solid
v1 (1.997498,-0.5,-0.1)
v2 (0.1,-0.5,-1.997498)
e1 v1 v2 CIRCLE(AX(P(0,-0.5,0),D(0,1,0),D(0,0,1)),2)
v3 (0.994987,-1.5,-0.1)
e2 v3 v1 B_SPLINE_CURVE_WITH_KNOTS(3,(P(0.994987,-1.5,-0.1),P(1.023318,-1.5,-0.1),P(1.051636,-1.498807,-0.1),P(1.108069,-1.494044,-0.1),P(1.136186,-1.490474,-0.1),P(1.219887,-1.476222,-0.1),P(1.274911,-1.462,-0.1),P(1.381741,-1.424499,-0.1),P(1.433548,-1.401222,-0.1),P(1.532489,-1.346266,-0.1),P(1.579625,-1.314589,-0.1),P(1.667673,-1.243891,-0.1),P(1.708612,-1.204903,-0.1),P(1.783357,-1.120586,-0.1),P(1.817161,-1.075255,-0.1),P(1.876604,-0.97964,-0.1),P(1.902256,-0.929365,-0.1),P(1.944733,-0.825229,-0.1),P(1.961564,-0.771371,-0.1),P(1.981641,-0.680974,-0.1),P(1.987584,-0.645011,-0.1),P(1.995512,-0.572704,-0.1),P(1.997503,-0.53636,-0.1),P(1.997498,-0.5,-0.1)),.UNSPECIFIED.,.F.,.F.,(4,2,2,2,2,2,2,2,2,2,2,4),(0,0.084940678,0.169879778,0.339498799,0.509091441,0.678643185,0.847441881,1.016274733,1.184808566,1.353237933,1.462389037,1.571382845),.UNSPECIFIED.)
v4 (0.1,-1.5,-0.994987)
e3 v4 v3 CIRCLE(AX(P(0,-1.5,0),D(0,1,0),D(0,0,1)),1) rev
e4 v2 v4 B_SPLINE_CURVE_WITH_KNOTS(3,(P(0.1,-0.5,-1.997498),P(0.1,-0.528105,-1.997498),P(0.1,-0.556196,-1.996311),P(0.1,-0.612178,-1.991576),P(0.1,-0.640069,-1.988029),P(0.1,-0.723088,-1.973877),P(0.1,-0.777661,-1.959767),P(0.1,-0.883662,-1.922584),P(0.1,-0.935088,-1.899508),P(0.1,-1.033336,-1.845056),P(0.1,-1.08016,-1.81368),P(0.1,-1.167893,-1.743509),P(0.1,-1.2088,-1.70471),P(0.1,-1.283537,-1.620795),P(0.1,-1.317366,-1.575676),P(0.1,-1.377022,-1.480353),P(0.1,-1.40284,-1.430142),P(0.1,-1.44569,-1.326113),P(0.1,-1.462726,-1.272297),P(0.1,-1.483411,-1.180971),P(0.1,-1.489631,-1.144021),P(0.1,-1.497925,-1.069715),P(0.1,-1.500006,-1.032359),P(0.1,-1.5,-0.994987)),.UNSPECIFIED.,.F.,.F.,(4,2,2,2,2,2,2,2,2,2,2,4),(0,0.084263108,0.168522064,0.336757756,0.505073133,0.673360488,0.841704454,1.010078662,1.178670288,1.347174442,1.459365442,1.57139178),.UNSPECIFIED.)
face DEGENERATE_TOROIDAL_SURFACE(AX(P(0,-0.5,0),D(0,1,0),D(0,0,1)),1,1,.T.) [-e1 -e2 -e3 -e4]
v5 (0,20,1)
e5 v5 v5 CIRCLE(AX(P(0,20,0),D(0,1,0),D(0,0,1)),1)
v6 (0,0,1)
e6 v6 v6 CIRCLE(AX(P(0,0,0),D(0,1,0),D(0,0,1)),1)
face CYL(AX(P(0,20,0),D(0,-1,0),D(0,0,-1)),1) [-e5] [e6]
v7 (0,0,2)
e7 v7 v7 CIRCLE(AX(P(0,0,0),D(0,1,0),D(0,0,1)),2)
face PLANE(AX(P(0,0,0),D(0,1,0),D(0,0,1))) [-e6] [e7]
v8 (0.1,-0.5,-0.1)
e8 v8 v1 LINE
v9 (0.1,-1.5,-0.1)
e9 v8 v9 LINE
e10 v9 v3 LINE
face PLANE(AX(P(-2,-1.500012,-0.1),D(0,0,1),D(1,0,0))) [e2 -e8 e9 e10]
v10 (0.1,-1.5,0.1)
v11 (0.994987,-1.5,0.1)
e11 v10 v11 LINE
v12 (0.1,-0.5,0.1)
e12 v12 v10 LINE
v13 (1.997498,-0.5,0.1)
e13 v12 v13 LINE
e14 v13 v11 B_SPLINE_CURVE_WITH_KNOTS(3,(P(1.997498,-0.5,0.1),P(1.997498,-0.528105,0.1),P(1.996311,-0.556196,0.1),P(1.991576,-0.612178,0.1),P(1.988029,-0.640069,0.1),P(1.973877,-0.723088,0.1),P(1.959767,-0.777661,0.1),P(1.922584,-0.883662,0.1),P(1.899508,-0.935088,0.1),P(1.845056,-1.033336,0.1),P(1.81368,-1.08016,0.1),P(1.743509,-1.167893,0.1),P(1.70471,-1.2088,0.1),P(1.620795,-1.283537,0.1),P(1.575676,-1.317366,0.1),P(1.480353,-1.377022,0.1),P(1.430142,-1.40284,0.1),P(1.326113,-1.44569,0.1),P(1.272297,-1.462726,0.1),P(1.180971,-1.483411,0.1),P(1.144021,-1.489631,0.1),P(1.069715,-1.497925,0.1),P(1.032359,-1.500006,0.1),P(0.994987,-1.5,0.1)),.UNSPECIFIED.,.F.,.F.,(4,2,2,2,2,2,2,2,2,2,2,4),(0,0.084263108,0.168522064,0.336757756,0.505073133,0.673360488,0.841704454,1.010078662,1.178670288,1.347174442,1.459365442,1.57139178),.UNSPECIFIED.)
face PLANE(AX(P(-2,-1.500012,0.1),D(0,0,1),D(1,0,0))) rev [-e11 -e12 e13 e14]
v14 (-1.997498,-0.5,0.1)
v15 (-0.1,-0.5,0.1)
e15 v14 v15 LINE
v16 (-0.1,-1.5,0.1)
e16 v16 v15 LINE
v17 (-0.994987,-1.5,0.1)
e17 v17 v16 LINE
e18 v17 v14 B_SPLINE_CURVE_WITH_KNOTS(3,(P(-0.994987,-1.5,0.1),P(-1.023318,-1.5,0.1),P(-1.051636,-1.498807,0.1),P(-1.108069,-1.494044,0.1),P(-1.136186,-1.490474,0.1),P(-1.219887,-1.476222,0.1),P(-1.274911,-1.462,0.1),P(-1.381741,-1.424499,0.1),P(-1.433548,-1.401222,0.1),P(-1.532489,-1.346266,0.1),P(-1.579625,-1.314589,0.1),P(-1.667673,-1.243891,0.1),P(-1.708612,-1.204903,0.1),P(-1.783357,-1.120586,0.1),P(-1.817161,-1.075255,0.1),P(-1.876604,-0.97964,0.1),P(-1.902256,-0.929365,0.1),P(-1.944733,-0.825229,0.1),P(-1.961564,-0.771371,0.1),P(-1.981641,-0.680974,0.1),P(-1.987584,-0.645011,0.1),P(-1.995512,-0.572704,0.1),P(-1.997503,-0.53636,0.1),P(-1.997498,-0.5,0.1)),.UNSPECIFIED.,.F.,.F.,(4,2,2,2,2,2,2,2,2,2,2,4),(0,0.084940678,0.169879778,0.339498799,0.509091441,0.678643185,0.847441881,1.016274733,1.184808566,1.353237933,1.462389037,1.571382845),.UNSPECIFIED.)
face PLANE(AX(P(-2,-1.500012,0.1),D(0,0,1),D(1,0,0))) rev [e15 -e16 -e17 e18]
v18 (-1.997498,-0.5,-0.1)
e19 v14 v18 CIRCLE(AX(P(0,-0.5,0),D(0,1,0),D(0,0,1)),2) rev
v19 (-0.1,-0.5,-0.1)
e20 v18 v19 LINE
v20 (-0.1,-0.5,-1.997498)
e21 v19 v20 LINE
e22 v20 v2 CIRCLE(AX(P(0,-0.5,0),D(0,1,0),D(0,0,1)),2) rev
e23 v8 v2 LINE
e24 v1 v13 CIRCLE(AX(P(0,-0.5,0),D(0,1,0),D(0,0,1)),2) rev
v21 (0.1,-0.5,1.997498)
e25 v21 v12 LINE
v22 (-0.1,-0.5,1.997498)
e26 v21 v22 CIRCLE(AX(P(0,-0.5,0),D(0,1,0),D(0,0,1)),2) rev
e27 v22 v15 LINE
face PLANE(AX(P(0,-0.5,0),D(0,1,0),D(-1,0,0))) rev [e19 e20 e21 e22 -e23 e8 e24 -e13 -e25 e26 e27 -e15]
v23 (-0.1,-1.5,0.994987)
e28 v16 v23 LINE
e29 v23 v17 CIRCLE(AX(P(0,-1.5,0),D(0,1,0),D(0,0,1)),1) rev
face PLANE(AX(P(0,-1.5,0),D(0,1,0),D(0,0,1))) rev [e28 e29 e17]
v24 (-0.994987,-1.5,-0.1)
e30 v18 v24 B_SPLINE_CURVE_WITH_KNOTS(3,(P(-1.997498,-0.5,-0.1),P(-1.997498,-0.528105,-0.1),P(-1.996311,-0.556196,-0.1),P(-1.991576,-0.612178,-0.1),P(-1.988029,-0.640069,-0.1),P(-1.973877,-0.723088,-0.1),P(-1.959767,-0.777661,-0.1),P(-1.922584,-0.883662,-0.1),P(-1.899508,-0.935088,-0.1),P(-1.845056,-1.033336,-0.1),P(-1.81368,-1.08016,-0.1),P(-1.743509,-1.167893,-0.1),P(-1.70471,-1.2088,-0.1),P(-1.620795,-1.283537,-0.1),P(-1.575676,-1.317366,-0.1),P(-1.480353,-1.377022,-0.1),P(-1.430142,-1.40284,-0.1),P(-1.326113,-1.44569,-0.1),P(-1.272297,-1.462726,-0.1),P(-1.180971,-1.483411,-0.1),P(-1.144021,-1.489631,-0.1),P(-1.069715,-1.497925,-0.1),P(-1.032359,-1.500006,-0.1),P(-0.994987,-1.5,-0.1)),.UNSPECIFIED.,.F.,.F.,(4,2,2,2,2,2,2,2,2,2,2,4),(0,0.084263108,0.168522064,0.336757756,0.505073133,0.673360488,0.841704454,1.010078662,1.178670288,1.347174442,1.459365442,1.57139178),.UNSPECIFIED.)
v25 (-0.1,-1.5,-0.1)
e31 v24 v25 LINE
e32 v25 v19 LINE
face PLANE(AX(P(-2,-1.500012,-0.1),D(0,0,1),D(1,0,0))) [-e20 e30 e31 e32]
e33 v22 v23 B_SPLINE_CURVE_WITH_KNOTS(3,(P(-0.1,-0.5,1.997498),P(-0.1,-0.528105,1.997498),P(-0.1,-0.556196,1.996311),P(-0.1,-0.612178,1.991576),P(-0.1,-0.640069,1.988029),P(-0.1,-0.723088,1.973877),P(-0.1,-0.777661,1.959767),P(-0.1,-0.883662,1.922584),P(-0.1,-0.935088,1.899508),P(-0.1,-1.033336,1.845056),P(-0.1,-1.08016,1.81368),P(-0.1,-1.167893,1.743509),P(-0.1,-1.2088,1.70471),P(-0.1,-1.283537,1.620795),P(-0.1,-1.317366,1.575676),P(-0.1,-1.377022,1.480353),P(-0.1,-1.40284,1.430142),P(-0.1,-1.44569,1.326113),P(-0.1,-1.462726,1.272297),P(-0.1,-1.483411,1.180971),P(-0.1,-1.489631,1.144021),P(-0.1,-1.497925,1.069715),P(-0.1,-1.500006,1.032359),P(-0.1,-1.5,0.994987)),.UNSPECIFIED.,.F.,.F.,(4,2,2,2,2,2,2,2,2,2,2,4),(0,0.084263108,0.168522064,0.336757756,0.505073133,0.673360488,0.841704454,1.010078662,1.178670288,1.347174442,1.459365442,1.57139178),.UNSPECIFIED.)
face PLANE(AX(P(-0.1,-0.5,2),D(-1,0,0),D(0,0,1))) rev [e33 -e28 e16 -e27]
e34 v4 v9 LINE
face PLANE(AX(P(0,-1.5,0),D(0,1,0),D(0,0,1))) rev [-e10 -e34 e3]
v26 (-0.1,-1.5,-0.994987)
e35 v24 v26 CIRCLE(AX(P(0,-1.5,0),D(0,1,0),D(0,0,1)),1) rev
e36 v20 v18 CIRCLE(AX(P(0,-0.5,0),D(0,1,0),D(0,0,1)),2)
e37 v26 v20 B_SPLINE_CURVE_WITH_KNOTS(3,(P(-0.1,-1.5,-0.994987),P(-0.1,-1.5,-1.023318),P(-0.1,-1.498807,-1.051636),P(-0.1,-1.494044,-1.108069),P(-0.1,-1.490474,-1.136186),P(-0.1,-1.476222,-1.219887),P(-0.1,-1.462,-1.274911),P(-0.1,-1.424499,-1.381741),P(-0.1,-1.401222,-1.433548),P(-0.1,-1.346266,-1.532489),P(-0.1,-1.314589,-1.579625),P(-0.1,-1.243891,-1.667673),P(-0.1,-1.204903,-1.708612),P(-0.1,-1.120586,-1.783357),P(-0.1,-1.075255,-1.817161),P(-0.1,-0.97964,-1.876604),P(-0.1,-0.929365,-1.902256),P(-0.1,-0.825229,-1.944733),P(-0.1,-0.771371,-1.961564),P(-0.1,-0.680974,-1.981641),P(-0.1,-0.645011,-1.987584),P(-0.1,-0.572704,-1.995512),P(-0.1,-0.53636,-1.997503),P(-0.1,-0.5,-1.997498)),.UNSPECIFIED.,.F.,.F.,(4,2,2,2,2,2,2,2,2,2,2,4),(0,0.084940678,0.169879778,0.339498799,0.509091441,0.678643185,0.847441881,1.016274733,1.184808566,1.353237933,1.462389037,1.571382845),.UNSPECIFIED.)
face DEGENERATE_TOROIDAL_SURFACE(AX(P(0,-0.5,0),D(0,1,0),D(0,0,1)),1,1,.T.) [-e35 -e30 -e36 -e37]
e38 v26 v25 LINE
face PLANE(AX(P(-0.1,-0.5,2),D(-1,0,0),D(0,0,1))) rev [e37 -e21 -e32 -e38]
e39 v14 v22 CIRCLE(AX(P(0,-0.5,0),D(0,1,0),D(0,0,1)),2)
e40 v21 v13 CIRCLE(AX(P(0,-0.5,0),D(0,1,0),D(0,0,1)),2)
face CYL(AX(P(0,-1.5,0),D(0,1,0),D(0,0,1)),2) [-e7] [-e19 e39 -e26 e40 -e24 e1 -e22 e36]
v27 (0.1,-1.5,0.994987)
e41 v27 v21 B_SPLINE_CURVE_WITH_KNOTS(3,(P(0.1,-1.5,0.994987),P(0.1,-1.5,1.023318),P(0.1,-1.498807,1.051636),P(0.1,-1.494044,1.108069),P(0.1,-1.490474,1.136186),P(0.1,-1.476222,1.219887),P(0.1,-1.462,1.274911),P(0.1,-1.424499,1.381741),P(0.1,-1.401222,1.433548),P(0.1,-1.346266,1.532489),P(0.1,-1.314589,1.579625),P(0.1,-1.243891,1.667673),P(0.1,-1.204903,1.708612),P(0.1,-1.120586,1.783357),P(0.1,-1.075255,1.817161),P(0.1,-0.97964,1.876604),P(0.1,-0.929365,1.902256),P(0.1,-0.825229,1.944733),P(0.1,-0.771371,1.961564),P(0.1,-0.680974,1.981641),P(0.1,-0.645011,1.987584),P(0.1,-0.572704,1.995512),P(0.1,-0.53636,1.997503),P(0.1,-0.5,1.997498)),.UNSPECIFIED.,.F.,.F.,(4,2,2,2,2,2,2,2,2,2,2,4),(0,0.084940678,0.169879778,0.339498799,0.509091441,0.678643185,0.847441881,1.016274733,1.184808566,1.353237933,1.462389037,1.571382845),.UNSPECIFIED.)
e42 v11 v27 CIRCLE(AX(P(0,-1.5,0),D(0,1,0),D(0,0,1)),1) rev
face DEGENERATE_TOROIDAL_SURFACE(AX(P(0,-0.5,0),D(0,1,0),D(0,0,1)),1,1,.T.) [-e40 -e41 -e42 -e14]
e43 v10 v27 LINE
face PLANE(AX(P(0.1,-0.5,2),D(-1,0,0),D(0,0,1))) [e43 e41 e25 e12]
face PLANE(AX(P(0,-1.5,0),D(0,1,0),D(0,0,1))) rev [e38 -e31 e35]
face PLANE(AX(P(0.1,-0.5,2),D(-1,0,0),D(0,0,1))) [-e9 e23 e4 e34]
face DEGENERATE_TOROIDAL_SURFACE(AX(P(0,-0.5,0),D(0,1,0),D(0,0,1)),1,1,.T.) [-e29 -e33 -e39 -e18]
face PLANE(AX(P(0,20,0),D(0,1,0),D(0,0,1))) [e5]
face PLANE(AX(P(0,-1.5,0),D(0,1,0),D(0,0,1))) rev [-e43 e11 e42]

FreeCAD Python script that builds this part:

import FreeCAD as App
import Part
import Sketcher
from FreeCAD import Vector


def edges_at(feature, points):
    """Names of the edges that pass closest to the given points."""
    edges = feature.Shape.Edges
    near = lambda p: min(range(len(edges)), key=lambda i: edges[i].distToShape(Part.Vertex(*p))[0])
    return sorted({f"Edge{near(p) + 1}" for p in points})

doc = App.newDocument("Part")
body = doc.addObject("PartDesign::Body", "Body")

sketch1 = body.newObject("Sketcher::SketchObject", "Sketch")
sketch1.AttachmentSupport = (doc.getObject("XZ_Plane"), [""])
sketch1.MapMode = "FlatFace"
sketch1.addGeometry(Part.Circle(Vector(0, 0, 0), Vector(0, 0, 1), 2), False)
sketch1.addConstraint(Sketcher.Constraint("Coincident", 0, 3, -1, 1))
sketch1.addConstraint(Sketcher.Constraint("Diameter", 0, 4.0))
pad1 = body.newObject("PartDesign::Pad", "Pad")
pad1.Profile = sketch1
pad1.Length = 1.5

sketch2 = body.newObject("Sketcher::SketchObject", "Sketch001")
sketch2.AttachmentSupport = (doc.getObject("XZ_Plane"), [""])
sketch2.MapMode = "FlatFace"
sketch2.addGeometry(Part.Circle(Vector(0, 0, 0), Vector(0, 0, 1), 1), False)
sketch2.addConstraint(Sketcher.Constraint("Coincident", 0, 3, -1, 1))
sketch2.addConstraint(Sketcher.Constraint("Diameter", 0, 2.0))
pad2 = body.newObject("PartDesign::Pad", "Pad001")
pad2.Profile = sketch2
pad2.Length = 20
pad2.Reversed = True

sketch3 = body.newObject("Sketcher::SketchObject", "Sketch002")
sketch3.AttachmentSupport = (doc.getObject("XZ_Plane"), [""])
sketch3.MapMode = "FlatFace"
sketch3.AttachmentOffset = App.Placement(Vector(0, 0, 1.5), App.Rotation())
sketch3.addGeometry(Part.LineSegment(Vector(-2, 0.1, 0), Vector(-2, -0.1, 0)), False)
sketch3.addGeometry(Part.LineSegment(Vector(-2, -0.1, 0), Vector(-0.1, -0.1, 0)), False)
sketch3.addGeometry(Part.LineSegment(Vector(-0.1, -0.1, 0), Vector(-0.1, -2, 0)), False)
sketch3.addGeometry(Part.LineSegment(Vector(-0.1, -2, 0), Vector(0.1, -2, 0)), False)
sketch3.addGeometry(Part.LineSegment(Vector(0.1, -2, 0), Vector(0.1, -0.1, 0)), False)
sketch3.addGeometry(Part.LineSegment(Vector(0.1, -0.1, 0), Vector(2, -0.1, 0)), False)
sketch3.addGeometry(Part.LineSegment(Vector(2, -0.1, 0), Vector(2, 0.1, 0)), False)
sketch3.addGeometry(Part.LineSegment(Vector(2, 0.1, 0), Vector(0.1, 0.1, 0)), False)
sketch3.addGeometry(Part.LineSegment(Vector(0.1, 0.1, 0), Vector(0.1, 2, 0)), False)
sketch3.addGeometry(Part.LineSegment(Vector(0.1, 2, 0), Vector(-0.1, 2, 0)), False)
sketch3.addGeometry(Part.LineSegment(Vector(-0.1, 2, 0), Vector(-0.1, 0.1, 0)), False)
sketch3.addGeometry(Part.LineSegment(Vector(-0.1, 0.1, 0), Vector(-2, 0.1, 0)), False)
sketch3.addConstraint(Sketcher.Constraint("Coincident", 0, 2, 1, 1))
sketch3.addConstraint(Sketcher.Constraint("Coincident", 1, 2, 2, 1))
sketch3.addConstraint(Sketcher.Constraint("Coincident", 2, 2, 3, 1))
sketch3.addConstraint(Sketcher.Constraint("Coincident", 3, 2, 4, 1))
sketch3.addConstraint(Sketcher.Constraint("Coincident", 4, 2, 5, 1))
sketch3.addConstraint(Sketcher.Constraint("Coincident", 5, 2, 6, 1))
sketch3.addConstraint(Sketcher.Constraint("Coincident", 6, 2, 7, 1))
sketch3.addConstraint(Sketcher.Constraint("Coincident", 7, 2, 8, 1))
sketch3.addConstraint(Sketcher.Constraint("Coincident", 8, 2, 9, 1))
sketch3.addConstraint(Sketcher.Constraint("Coincident", 9, 2, 10, 1))
sketch3.addConstraint(Sketcher.Constraint("Coincident", 10, 2, 11, 1))
sketch3.addConstraint(Sketcher.Constraint("Coincident", 11, 2, 0, 1))
sketch3.addConstraint(Sketcher.Constraint("Vertical", 0))
sketch3.addConstraint(Sketcher.Constraint("Horizontal", 1))
sketch3.addConstraint(Sketcher.Constraint("Vertical", 2))
sketch3.addConstraint(Sketcher.Constraint("Horizontal", 3))
sketch3.addConstraint(Sketcher.Constraint("Vertical", 4))
sketch3.addConstraint(Sketcher.Constraint("Horizontal", 5))
sketch3.addConstraint(Sketcher.Constraint("Vertical", 6))
sketch3.addConstraint(Sketcher.Constraint("Horizontal", 7))
sketch3.addConstraint(Sketcher.Constraint("Vertical", 8))
sketch3.addConstraint(Sketcher.Constraint("Horizontal", 9))
sketch3.addConstraint(Sketcher.Constraint("Vertical", 10))
sketch3.addConstraint(Sketcher.Constraint("Horizontal", 11))
sketch3.addConstraint(Sketcher.Constraint("Symmetric", 0, 2, 6, 2, -1, 1))
sketch3.addConstraint(Sketcher.Constraint("Symmetric", 2, 2, 8, 2, -1, 1))
sketch3.addConstraint(Sketcher.Constraint("Symmetric", 4, 2, 10, 2, -1, 1))
sketch3.addConstraint(Sketcher.Constraint("Symmetric", 1, 2, 4, 2, -2))
sketch3.addConstraint(Sketcher.Constraint("Equal", 9, 0))
sketch3.addConstraint(Sketcher.Constraint("Equal", 11, 2))
sketch3.addConstraint(Sketcher.Constraint("DistanceX", 1, 1, 1, 2, 1.9))
sketch3.addConstraint(Sketcher.Constraint("DistanceX", 3, 1, 3, 2, 0.2))
pocket1 = body.newObject("PartDesign::Pocket", "Pocket")
pocket1.Profile = sketch3
pocket1.Type = "TwoLengths"
pocket1.Length = 22.685248
pocket1.Length2 = 1
pocket1.Reversed = True
doc.recompute()

fillet = body.newObject("PartDesign::Fillet", "Fillet")
fillet.Base = (pocket1, edges_at(pocket1, [
    (1.414, -1.5, 1.414),
    (-1.414, -1.5, 1.414),
    (-1.414, -1.5, -1.414),
    (1.414, -1.5, -1.414),
]))
fillet.Radius = 1

doc.recompute()
